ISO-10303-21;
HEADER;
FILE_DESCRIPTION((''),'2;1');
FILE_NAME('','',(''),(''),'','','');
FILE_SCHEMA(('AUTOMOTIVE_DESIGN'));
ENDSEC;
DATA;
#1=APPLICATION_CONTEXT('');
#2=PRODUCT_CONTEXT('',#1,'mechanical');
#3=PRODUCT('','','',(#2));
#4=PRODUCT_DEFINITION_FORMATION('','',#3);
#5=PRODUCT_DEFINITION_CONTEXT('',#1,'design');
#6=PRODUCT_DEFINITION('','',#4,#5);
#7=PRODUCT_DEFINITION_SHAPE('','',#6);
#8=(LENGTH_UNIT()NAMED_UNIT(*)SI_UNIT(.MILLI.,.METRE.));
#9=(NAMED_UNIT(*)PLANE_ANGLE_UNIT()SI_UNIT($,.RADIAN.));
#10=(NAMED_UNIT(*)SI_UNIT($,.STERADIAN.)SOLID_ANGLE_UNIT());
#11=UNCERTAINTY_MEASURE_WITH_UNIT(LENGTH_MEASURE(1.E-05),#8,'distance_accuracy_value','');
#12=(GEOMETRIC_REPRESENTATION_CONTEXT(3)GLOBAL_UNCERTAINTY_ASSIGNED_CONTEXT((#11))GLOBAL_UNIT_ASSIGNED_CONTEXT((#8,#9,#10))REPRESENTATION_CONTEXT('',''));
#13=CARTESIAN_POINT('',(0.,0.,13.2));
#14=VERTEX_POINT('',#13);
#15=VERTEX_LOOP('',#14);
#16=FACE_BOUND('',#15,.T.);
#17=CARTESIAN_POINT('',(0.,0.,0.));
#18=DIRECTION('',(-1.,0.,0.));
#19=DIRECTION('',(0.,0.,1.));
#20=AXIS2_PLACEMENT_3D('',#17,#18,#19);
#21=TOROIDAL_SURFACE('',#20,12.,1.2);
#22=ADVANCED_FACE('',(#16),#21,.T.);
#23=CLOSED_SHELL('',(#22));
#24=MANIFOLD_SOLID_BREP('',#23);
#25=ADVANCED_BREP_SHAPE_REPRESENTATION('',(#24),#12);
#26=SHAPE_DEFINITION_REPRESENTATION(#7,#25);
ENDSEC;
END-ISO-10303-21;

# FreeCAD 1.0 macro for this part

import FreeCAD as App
import Part
import Sketcher

V = App.Vector
Q = App.Units.Quantity

doc = App.newDocument("Part")
body = doc.addObject("PartDesign::Body", "Body")

# Sketch on XY plane
sketch1 = doc.addObject("Sketcher::SketchObject", "Sketch")
body.addObject(sketch1)
sketch1.AttachmentSupport = (doc.XY_Plane, [""])
sketch1.MapMode = "FlatFace"
sketch1.addGeometry(Part.Circle(V(0, 12, 0), V(0, 0, 1), 1.2), False)
sketch1.addConstraint([
    Sketcher.Constraint("PointOnObject", 0, 3, -2),
    Sketcher.Constraint("Diameter", 0, Q("2.4 mm")),
    Sketcher.Constraint("DistanceY", -1, 1, 0, 3, Q("12 mm")),
])
revolution = doc.addObject("PartDesign::Revolution", "Revolution")
body.addObject(revolution)
revolution.Profile = sketch1
revolution.ReferenceAxis = (sketch1, ["H_Axis"])
revolution.Angle = 360

doc.recompute()
